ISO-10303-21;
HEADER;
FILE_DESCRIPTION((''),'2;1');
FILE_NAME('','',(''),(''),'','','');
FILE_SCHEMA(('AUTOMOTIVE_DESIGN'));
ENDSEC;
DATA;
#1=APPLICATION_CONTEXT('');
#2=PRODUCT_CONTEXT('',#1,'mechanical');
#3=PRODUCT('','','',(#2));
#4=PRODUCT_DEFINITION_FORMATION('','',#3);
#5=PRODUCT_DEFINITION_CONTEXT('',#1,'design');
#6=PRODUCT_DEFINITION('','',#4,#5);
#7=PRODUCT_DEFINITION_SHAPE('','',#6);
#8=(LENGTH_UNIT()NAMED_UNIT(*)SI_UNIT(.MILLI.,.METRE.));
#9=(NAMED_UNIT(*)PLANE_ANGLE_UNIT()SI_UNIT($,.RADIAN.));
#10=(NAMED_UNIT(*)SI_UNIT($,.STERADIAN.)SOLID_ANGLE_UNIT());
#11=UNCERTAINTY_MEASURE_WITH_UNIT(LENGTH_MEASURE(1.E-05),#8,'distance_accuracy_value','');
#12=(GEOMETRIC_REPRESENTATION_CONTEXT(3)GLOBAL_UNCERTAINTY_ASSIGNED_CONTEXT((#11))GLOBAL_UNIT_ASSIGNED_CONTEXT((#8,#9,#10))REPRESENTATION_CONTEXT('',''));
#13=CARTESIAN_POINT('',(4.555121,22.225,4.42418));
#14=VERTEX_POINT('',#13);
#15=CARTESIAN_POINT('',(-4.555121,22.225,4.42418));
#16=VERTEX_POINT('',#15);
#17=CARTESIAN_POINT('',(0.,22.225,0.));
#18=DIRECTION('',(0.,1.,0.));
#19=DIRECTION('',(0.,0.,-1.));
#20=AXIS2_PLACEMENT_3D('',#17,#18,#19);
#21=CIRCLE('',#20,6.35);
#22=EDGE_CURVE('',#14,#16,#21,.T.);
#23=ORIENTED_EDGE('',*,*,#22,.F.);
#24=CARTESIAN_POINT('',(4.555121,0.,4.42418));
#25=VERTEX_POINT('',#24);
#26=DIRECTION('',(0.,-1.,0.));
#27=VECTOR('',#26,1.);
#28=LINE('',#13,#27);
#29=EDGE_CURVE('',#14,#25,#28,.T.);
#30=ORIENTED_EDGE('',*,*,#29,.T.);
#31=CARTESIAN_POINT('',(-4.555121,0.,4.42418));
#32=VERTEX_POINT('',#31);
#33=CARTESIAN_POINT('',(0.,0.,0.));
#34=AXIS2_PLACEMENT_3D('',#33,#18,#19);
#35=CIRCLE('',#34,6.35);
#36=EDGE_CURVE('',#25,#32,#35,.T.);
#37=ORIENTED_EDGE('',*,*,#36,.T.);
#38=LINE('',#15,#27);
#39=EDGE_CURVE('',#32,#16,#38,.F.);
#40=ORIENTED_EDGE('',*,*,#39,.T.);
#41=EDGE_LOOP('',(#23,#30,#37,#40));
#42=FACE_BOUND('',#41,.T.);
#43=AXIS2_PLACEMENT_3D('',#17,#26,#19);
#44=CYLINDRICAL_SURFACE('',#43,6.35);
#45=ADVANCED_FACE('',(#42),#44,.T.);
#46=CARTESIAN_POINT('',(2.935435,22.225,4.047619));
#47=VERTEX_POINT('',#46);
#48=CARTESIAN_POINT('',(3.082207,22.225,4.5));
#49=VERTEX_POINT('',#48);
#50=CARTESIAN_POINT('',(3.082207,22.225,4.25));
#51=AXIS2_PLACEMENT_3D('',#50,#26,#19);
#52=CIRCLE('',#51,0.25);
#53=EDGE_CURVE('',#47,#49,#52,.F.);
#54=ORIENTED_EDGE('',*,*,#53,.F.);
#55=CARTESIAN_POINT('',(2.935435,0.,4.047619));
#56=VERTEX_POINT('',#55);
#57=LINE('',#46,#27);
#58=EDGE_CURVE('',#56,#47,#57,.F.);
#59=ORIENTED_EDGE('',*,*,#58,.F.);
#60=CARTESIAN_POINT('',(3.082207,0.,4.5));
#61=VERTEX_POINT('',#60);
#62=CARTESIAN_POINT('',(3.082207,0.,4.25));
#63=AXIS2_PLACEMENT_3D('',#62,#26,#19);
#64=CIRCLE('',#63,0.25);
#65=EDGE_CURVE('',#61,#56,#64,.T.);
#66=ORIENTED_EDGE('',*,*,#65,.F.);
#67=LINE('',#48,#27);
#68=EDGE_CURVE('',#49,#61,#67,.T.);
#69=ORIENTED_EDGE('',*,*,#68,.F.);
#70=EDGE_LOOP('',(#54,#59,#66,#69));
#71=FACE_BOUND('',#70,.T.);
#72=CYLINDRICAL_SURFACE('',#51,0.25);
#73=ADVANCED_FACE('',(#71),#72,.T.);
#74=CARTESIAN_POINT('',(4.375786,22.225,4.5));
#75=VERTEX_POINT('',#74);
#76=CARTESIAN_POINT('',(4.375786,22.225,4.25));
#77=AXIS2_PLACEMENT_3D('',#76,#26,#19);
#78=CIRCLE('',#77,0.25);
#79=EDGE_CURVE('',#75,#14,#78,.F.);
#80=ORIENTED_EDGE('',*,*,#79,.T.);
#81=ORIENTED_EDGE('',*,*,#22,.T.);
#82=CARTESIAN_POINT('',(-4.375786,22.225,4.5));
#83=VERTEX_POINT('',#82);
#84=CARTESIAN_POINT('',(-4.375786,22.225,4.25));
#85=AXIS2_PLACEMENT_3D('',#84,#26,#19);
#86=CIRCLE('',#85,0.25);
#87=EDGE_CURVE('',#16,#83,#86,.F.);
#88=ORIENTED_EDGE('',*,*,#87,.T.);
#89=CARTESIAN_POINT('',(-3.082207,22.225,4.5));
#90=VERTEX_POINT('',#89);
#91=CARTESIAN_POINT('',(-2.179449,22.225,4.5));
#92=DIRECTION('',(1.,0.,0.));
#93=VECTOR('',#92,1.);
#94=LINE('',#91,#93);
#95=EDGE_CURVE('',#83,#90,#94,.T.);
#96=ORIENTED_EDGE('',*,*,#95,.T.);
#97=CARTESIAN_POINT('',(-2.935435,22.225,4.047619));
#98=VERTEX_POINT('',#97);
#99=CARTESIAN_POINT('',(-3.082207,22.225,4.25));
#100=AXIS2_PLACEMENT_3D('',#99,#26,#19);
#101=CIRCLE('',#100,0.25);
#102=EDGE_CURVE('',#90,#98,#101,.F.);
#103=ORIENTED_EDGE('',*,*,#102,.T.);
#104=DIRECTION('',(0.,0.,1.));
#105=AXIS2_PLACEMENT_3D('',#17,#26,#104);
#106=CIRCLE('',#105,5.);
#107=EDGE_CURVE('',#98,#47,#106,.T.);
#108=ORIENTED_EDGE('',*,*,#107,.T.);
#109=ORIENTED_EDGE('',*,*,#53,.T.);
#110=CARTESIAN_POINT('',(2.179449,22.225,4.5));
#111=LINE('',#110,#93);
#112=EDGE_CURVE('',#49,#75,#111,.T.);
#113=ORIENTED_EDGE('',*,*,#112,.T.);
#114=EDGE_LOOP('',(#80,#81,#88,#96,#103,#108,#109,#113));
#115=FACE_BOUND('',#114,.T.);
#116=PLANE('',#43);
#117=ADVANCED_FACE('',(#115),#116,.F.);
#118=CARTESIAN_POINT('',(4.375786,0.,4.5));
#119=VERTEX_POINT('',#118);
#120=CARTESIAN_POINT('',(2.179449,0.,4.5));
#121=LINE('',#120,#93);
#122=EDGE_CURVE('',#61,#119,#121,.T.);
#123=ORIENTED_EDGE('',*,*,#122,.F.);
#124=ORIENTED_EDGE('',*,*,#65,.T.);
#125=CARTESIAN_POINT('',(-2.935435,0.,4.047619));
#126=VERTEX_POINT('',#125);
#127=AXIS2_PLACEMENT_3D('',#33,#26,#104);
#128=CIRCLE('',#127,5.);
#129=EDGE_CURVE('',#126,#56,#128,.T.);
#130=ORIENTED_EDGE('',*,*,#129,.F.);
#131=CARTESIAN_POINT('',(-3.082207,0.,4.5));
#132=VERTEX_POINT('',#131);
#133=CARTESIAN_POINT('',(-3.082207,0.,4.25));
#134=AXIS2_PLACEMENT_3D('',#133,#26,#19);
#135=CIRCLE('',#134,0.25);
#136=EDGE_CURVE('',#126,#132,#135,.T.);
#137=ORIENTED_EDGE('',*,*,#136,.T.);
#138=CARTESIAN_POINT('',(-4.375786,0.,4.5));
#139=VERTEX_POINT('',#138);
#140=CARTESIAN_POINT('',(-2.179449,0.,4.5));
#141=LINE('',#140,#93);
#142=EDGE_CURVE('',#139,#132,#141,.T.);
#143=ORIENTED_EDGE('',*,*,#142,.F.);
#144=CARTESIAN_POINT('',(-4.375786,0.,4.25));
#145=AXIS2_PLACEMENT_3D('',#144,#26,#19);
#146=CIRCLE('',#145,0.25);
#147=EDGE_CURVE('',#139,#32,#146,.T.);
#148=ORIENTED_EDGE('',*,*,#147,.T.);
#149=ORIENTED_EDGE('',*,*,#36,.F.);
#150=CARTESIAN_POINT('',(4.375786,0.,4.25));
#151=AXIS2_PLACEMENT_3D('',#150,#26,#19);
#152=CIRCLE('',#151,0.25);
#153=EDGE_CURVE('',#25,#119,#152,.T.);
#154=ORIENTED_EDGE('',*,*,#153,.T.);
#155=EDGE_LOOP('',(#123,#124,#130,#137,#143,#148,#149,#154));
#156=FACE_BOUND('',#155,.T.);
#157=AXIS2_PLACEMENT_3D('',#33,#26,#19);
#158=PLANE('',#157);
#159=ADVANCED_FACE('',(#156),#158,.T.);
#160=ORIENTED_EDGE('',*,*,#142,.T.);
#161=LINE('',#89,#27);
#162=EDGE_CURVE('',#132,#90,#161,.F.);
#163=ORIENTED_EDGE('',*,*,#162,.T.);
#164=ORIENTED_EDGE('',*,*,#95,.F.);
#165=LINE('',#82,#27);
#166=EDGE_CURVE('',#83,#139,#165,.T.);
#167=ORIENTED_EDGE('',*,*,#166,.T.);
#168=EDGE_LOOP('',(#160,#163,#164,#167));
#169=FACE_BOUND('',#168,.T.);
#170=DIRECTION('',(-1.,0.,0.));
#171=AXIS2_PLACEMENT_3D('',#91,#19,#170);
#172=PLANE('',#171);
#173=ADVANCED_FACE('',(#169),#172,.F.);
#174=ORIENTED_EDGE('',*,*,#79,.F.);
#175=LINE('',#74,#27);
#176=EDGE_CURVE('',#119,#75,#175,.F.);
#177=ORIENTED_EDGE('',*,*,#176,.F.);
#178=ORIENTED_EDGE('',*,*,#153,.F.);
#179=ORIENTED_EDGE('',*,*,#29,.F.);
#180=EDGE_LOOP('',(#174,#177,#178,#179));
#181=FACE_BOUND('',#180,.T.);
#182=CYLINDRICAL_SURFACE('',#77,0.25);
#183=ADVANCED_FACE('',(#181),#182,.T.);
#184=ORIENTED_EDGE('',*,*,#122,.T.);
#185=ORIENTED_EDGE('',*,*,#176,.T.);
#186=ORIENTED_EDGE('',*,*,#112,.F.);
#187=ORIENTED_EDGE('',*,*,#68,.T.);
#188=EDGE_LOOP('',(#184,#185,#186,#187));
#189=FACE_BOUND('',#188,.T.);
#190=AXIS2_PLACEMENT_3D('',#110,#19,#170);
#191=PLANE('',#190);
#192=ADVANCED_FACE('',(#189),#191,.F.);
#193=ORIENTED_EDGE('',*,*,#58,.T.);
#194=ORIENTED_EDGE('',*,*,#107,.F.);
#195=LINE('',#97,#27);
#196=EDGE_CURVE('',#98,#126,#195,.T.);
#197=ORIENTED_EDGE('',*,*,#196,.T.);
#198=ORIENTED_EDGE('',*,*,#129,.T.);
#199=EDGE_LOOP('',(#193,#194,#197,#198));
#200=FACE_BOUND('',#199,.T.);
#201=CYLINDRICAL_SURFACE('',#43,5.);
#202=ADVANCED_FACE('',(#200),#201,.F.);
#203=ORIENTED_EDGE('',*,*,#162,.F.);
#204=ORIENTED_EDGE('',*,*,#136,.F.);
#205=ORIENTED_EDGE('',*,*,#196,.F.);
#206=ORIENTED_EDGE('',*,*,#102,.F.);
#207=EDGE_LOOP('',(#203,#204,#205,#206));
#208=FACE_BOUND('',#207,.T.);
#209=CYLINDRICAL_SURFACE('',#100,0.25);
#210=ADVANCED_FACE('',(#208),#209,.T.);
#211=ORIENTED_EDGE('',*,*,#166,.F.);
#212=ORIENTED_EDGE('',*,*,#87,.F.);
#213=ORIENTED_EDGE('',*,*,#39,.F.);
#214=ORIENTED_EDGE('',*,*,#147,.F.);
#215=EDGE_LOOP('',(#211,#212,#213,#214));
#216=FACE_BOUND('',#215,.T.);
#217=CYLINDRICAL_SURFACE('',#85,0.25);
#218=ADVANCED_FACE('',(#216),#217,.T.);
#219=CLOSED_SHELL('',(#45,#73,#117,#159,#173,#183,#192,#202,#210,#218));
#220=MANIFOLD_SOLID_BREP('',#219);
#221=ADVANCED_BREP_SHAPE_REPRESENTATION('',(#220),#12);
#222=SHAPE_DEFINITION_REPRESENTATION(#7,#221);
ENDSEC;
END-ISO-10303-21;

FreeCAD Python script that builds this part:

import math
import FreeCAD as App
import Part
import Sketcher
Q = App.Units.Quantity


def edges_at(feature, points):
    """Names of the edges that pass closest to the given points."""
    edges = feature.Shape.Edges
    near = lambda p: min(range(len(edges)), key=lambda i: edges[i].distToShape(Part.Vertex(*p))[0])
    return sorted({f"Edge{near(p) + 1}" for p in points})

doc = App.newDocument("Part")
body = doc.addObject("PartDesign::Body", "Body")

sketch1 = body.newObject("Sketcher::SketchObject", "Sketch")
sketch1.AttachmentSupport = (doc.getObject("XZ_Plane"), [""])
sketch1.MapMode = "FlatFace"
sketch1.addGeometry([
    Part.LineSegment(App.Vector(-4.480234, 4.5, 0), App.Vector(-2.179449, 4.5, 0)),
    Part.ArcOfCircle(Part.Circle(App.Vector(0, 0, 0), App.Vector(0, 0, 1), 5), math.radians(115.841933), math.radians(424.158067)),
    Part.LineSegment(App.Vector(2.179449, 4.5, 0), App.Vector(4.480234, 4.5, 0)),
    Part.ArcOfCircle(Part.Circle(App.Vector(0, 0, 0), App.Vector(0, 0, 1), 6.35), math.radians(134.873891), math.radians(405.126109)),
], False)
sketch1.addConstraint([
    Sketcher.Constraint("Coincident", 0, 2, 1, 1),
    Sketcher.Constraint("Coincident", 1, 2, 2, 1),
    Sketcher.Constraint("Coincident", 2, 2, 3, 2),
    Sketcher.Constraint("Coincident", 3, 1, 0, 1),
    Sketcher.Constraint("Horizontal", 0),
    Sketcher.Constraint("Horizontal", 2),
    Sketcher.Constraint("Coincident", 1, 3, -1, 1),
    Sketcher.Constraint("Coincident", 3, 3, -1, 1),
    Sketcher.Constraint("Horizontal", 0, 2, 1, 2),
    Sketcher.Constraint("Radius", 3, Q("0.25 in")),
    Sketcher.Constraint("Radius", 1, 5.0),
    Sketcher.Constraint("DistanceY", -1, 1, 0, 2, 4.5),
])
pad1 = body.newObject("PartDesign::Pad", "Pad")
pad1.Profile = sketch1
pad1.Length = Q("0.875 in")
pad1.Reversed = True
doc.recompute()

fillet = body.newObject("PartDesign::Fillet", "Fillet")
fillet.Base = (pad1, edges_at(pad1, [
    (4.48, 11.113, 4.5),
    (2.179, 11.113, 4.5),
    (-2.179, 11.113, 4.5),
    (-4.48, 11.113, 4.5),
]))
fillet.Radius = 0.25

doc.recompute()
